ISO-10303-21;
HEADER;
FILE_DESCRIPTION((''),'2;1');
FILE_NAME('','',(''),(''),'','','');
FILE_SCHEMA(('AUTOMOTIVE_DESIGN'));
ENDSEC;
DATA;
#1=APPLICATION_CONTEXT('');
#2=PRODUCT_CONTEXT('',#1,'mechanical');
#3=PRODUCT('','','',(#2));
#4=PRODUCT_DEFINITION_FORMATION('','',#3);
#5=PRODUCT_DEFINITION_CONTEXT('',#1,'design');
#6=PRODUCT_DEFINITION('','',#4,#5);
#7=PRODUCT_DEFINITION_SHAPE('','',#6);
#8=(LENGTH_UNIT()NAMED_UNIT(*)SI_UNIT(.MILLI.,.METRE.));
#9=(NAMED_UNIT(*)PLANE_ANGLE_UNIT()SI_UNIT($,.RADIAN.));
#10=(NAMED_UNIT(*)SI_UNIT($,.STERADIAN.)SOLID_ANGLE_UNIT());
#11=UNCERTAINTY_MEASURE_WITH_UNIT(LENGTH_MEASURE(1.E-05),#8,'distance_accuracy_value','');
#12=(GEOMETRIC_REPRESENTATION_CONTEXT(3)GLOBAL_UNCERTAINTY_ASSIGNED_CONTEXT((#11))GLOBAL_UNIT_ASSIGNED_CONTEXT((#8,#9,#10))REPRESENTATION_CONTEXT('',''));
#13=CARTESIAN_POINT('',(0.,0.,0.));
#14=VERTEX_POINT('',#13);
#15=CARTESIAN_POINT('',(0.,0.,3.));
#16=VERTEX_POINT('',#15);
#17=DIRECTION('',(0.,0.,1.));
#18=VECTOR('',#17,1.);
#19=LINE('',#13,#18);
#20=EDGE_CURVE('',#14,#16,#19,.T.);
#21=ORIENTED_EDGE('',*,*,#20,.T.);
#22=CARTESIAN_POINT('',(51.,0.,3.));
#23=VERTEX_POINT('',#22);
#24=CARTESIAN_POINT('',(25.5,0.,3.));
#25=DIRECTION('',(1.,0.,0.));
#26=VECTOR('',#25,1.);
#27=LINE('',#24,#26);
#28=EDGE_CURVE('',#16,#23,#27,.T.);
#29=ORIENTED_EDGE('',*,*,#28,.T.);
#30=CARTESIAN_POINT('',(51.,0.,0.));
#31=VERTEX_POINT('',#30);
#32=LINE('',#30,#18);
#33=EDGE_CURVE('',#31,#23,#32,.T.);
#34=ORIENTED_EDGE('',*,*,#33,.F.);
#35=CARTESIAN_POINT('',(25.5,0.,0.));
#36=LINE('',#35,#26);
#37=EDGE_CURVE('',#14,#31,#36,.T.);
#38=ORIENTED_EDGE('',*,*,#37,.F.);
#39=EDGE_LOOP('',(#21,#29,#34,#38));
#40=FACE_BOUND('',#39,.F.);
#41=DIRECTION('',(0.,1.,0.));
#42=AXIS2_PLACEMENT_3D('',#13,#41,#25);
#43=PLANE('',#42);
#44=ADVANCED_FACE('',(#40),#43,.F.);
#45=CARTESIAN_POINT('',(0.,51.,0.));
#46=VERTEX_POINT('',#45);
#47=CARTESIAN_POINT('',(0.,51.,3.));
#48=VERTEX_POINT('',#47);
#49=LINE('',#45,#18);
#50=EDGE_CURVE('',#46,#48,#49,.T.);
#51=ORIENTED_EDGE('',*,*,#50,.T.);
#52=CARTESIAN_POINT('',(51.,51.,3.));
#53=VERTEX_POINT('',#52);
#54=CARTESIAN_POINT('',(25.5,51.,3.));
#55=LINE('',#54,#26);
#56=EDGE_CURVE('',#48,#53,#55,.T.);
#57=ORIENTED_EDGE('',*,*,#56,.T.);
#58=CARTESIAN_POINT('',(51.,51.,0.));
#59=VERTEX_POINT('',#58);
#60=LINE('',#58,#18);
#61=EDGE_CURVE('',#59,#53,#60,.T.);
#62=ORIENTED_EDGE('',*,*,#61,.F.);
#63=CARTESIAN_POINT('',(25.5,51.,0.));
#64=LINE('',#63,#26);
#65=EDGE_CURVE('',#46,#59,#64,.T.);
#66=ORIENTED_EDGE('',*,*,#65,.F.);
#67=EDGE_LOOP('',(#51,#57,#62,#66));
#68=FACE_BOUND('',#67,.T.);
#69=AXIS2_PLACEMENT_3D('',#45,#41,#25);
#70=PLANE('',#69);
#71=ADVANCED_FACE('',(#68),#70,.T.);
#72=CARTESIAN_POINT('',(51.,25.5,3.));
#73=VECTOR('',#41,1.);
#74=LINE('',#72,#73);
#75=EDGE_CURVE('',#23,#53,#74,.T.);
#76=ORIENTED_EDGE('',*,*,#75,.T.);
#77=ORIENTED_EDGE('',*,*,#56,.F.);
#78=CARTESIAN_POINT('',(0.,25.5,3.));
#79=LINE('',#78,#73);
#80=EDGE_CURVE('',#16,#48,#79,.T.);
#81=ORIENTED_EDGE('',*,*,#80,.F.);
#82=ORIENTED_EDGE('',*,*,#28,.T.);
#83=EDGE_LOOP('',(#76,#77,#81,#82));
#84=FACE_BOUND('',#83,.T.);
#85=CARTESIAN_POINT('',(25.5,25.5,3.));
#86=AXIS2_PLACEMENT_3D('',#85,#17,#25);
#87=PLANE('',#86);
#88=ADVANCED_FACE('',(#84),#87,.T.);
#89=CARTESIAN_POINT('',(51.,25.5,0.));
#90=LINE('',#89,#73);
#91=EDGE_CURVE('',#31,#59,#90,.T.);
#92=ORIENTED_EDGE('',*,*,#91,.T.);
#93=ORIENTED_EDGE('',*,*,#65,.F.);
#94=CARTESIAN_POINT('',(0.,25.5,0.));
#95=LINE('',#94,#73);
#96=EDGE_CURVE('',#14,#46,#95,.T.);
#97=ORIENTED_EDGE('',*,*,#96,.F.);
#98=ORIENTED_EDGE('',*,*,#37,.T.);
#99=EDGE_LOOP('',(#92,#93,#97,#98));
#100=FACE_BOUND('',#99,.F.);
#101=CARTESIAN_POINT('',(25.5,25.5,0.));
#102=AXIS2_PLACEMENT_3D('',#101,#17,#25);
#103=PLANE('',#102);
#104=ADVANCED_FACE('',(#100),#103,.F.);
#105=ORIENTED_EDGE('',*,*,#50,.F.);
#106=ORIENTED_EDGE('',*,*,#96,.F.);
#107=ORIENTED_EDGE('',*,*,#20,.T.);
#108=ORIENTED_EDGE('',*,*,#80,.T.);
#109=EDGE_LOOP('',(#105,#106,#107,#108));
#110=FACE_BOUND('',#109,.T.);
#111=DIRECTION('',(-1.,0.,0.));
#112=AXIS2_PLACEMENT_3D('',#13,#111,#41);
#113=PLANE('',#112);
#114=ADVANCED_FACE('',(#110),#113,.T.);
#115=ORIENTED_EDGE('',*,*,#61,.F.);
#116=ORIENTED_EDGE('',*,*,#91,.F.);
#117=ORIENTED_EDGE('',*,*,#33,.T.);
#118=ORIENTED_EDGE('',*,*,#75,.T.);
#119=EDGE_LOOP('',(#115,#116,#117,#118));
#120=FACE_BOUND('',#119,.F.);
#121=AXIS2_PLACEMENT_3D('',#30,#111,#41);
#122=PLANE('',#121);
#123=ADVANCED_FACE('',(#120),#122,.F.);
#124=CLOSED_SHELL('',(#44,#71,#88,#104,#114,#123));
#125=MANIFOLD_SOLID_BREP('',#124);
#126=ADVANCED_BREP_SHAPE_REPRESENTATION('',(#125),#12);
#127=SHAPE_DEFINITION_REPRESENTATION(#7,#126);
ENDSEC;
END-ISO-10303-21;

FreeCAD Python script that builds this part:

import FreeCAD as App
import Part
import Sketcher
from FreeCAD import Vector
Q = App.Units.Quantity

doc = App.newDocument("Part")
params = doc.addObject("Spreadsheet::Sheet", "Params")
for row, (alias, value) in enumerate([
    ("sketch1_width", "51 mm"),
    ("pad1_length", "3 mm"),
], start=1):
    params.set(f"A{row}", alias)
    params.set(f"B{row}", "=" + value)
    params.setAlias(f"B{row}", alias)

body = doc.addObject("PartDesign::Body", "Body")

sketch1 = body.newObject("Sketcher::SketchObject", "Sketch")
sketch1.AttachmentSupport = (doc.getObject("XY_Plane"), [""])
sketch1.MapMode = "FlatFace"
sketch1.addGeometry([
    Part.LineSegment(Vector(0, 51, 0), Vector(0, 0, 0)),
    Part.LineSegment(Vector(0, 0, 0), Vector(51, 0, 0)),
    Part.LineSegment(Vector(51, 0, 0), Vector(51, 51, 0)),
    Part.LineSegment(Vector(51, 51, 0), Vector(0, 51, 0)),
], False)
sketch1.addConstraint([
    Sketcher.Constraint("Coincident", 0, 2, 1, 1),
    Sketcher.Constraint("Coincident", 1, 2, 2, 1),
    Sketcher.Constraint("Coincident", 2, 2, 3, 1),
    Sketcher.Constraint("Coincident", 3, 2, 0, 1),
    Sketcher.Constraint("Vertical", 0),
    Sketcher.Constraint("Horizontal", 1),
    Sketcher.Constraint("Vertical", 2),
    Sketcher.Constraint("Horizontal", 3),
    Sketcher.Constraint("Coincident", 0, 2, -1, 1),
    Sketcher.Constraint("Equal", 3, 0),
    Sketcher.Constraint("DistanceX", 1, 1, 1, 2, Q("51 mm")),
])
sketch1.setExpression("Constraints[10]", "Params.sketch1_width")
pad1 = body.newObject("PartDesign::Pad", "Pad")
pad1.Profile = sketch1
pad1.setExpression("Length", "Params.pad1_length")

doc.recompute()
